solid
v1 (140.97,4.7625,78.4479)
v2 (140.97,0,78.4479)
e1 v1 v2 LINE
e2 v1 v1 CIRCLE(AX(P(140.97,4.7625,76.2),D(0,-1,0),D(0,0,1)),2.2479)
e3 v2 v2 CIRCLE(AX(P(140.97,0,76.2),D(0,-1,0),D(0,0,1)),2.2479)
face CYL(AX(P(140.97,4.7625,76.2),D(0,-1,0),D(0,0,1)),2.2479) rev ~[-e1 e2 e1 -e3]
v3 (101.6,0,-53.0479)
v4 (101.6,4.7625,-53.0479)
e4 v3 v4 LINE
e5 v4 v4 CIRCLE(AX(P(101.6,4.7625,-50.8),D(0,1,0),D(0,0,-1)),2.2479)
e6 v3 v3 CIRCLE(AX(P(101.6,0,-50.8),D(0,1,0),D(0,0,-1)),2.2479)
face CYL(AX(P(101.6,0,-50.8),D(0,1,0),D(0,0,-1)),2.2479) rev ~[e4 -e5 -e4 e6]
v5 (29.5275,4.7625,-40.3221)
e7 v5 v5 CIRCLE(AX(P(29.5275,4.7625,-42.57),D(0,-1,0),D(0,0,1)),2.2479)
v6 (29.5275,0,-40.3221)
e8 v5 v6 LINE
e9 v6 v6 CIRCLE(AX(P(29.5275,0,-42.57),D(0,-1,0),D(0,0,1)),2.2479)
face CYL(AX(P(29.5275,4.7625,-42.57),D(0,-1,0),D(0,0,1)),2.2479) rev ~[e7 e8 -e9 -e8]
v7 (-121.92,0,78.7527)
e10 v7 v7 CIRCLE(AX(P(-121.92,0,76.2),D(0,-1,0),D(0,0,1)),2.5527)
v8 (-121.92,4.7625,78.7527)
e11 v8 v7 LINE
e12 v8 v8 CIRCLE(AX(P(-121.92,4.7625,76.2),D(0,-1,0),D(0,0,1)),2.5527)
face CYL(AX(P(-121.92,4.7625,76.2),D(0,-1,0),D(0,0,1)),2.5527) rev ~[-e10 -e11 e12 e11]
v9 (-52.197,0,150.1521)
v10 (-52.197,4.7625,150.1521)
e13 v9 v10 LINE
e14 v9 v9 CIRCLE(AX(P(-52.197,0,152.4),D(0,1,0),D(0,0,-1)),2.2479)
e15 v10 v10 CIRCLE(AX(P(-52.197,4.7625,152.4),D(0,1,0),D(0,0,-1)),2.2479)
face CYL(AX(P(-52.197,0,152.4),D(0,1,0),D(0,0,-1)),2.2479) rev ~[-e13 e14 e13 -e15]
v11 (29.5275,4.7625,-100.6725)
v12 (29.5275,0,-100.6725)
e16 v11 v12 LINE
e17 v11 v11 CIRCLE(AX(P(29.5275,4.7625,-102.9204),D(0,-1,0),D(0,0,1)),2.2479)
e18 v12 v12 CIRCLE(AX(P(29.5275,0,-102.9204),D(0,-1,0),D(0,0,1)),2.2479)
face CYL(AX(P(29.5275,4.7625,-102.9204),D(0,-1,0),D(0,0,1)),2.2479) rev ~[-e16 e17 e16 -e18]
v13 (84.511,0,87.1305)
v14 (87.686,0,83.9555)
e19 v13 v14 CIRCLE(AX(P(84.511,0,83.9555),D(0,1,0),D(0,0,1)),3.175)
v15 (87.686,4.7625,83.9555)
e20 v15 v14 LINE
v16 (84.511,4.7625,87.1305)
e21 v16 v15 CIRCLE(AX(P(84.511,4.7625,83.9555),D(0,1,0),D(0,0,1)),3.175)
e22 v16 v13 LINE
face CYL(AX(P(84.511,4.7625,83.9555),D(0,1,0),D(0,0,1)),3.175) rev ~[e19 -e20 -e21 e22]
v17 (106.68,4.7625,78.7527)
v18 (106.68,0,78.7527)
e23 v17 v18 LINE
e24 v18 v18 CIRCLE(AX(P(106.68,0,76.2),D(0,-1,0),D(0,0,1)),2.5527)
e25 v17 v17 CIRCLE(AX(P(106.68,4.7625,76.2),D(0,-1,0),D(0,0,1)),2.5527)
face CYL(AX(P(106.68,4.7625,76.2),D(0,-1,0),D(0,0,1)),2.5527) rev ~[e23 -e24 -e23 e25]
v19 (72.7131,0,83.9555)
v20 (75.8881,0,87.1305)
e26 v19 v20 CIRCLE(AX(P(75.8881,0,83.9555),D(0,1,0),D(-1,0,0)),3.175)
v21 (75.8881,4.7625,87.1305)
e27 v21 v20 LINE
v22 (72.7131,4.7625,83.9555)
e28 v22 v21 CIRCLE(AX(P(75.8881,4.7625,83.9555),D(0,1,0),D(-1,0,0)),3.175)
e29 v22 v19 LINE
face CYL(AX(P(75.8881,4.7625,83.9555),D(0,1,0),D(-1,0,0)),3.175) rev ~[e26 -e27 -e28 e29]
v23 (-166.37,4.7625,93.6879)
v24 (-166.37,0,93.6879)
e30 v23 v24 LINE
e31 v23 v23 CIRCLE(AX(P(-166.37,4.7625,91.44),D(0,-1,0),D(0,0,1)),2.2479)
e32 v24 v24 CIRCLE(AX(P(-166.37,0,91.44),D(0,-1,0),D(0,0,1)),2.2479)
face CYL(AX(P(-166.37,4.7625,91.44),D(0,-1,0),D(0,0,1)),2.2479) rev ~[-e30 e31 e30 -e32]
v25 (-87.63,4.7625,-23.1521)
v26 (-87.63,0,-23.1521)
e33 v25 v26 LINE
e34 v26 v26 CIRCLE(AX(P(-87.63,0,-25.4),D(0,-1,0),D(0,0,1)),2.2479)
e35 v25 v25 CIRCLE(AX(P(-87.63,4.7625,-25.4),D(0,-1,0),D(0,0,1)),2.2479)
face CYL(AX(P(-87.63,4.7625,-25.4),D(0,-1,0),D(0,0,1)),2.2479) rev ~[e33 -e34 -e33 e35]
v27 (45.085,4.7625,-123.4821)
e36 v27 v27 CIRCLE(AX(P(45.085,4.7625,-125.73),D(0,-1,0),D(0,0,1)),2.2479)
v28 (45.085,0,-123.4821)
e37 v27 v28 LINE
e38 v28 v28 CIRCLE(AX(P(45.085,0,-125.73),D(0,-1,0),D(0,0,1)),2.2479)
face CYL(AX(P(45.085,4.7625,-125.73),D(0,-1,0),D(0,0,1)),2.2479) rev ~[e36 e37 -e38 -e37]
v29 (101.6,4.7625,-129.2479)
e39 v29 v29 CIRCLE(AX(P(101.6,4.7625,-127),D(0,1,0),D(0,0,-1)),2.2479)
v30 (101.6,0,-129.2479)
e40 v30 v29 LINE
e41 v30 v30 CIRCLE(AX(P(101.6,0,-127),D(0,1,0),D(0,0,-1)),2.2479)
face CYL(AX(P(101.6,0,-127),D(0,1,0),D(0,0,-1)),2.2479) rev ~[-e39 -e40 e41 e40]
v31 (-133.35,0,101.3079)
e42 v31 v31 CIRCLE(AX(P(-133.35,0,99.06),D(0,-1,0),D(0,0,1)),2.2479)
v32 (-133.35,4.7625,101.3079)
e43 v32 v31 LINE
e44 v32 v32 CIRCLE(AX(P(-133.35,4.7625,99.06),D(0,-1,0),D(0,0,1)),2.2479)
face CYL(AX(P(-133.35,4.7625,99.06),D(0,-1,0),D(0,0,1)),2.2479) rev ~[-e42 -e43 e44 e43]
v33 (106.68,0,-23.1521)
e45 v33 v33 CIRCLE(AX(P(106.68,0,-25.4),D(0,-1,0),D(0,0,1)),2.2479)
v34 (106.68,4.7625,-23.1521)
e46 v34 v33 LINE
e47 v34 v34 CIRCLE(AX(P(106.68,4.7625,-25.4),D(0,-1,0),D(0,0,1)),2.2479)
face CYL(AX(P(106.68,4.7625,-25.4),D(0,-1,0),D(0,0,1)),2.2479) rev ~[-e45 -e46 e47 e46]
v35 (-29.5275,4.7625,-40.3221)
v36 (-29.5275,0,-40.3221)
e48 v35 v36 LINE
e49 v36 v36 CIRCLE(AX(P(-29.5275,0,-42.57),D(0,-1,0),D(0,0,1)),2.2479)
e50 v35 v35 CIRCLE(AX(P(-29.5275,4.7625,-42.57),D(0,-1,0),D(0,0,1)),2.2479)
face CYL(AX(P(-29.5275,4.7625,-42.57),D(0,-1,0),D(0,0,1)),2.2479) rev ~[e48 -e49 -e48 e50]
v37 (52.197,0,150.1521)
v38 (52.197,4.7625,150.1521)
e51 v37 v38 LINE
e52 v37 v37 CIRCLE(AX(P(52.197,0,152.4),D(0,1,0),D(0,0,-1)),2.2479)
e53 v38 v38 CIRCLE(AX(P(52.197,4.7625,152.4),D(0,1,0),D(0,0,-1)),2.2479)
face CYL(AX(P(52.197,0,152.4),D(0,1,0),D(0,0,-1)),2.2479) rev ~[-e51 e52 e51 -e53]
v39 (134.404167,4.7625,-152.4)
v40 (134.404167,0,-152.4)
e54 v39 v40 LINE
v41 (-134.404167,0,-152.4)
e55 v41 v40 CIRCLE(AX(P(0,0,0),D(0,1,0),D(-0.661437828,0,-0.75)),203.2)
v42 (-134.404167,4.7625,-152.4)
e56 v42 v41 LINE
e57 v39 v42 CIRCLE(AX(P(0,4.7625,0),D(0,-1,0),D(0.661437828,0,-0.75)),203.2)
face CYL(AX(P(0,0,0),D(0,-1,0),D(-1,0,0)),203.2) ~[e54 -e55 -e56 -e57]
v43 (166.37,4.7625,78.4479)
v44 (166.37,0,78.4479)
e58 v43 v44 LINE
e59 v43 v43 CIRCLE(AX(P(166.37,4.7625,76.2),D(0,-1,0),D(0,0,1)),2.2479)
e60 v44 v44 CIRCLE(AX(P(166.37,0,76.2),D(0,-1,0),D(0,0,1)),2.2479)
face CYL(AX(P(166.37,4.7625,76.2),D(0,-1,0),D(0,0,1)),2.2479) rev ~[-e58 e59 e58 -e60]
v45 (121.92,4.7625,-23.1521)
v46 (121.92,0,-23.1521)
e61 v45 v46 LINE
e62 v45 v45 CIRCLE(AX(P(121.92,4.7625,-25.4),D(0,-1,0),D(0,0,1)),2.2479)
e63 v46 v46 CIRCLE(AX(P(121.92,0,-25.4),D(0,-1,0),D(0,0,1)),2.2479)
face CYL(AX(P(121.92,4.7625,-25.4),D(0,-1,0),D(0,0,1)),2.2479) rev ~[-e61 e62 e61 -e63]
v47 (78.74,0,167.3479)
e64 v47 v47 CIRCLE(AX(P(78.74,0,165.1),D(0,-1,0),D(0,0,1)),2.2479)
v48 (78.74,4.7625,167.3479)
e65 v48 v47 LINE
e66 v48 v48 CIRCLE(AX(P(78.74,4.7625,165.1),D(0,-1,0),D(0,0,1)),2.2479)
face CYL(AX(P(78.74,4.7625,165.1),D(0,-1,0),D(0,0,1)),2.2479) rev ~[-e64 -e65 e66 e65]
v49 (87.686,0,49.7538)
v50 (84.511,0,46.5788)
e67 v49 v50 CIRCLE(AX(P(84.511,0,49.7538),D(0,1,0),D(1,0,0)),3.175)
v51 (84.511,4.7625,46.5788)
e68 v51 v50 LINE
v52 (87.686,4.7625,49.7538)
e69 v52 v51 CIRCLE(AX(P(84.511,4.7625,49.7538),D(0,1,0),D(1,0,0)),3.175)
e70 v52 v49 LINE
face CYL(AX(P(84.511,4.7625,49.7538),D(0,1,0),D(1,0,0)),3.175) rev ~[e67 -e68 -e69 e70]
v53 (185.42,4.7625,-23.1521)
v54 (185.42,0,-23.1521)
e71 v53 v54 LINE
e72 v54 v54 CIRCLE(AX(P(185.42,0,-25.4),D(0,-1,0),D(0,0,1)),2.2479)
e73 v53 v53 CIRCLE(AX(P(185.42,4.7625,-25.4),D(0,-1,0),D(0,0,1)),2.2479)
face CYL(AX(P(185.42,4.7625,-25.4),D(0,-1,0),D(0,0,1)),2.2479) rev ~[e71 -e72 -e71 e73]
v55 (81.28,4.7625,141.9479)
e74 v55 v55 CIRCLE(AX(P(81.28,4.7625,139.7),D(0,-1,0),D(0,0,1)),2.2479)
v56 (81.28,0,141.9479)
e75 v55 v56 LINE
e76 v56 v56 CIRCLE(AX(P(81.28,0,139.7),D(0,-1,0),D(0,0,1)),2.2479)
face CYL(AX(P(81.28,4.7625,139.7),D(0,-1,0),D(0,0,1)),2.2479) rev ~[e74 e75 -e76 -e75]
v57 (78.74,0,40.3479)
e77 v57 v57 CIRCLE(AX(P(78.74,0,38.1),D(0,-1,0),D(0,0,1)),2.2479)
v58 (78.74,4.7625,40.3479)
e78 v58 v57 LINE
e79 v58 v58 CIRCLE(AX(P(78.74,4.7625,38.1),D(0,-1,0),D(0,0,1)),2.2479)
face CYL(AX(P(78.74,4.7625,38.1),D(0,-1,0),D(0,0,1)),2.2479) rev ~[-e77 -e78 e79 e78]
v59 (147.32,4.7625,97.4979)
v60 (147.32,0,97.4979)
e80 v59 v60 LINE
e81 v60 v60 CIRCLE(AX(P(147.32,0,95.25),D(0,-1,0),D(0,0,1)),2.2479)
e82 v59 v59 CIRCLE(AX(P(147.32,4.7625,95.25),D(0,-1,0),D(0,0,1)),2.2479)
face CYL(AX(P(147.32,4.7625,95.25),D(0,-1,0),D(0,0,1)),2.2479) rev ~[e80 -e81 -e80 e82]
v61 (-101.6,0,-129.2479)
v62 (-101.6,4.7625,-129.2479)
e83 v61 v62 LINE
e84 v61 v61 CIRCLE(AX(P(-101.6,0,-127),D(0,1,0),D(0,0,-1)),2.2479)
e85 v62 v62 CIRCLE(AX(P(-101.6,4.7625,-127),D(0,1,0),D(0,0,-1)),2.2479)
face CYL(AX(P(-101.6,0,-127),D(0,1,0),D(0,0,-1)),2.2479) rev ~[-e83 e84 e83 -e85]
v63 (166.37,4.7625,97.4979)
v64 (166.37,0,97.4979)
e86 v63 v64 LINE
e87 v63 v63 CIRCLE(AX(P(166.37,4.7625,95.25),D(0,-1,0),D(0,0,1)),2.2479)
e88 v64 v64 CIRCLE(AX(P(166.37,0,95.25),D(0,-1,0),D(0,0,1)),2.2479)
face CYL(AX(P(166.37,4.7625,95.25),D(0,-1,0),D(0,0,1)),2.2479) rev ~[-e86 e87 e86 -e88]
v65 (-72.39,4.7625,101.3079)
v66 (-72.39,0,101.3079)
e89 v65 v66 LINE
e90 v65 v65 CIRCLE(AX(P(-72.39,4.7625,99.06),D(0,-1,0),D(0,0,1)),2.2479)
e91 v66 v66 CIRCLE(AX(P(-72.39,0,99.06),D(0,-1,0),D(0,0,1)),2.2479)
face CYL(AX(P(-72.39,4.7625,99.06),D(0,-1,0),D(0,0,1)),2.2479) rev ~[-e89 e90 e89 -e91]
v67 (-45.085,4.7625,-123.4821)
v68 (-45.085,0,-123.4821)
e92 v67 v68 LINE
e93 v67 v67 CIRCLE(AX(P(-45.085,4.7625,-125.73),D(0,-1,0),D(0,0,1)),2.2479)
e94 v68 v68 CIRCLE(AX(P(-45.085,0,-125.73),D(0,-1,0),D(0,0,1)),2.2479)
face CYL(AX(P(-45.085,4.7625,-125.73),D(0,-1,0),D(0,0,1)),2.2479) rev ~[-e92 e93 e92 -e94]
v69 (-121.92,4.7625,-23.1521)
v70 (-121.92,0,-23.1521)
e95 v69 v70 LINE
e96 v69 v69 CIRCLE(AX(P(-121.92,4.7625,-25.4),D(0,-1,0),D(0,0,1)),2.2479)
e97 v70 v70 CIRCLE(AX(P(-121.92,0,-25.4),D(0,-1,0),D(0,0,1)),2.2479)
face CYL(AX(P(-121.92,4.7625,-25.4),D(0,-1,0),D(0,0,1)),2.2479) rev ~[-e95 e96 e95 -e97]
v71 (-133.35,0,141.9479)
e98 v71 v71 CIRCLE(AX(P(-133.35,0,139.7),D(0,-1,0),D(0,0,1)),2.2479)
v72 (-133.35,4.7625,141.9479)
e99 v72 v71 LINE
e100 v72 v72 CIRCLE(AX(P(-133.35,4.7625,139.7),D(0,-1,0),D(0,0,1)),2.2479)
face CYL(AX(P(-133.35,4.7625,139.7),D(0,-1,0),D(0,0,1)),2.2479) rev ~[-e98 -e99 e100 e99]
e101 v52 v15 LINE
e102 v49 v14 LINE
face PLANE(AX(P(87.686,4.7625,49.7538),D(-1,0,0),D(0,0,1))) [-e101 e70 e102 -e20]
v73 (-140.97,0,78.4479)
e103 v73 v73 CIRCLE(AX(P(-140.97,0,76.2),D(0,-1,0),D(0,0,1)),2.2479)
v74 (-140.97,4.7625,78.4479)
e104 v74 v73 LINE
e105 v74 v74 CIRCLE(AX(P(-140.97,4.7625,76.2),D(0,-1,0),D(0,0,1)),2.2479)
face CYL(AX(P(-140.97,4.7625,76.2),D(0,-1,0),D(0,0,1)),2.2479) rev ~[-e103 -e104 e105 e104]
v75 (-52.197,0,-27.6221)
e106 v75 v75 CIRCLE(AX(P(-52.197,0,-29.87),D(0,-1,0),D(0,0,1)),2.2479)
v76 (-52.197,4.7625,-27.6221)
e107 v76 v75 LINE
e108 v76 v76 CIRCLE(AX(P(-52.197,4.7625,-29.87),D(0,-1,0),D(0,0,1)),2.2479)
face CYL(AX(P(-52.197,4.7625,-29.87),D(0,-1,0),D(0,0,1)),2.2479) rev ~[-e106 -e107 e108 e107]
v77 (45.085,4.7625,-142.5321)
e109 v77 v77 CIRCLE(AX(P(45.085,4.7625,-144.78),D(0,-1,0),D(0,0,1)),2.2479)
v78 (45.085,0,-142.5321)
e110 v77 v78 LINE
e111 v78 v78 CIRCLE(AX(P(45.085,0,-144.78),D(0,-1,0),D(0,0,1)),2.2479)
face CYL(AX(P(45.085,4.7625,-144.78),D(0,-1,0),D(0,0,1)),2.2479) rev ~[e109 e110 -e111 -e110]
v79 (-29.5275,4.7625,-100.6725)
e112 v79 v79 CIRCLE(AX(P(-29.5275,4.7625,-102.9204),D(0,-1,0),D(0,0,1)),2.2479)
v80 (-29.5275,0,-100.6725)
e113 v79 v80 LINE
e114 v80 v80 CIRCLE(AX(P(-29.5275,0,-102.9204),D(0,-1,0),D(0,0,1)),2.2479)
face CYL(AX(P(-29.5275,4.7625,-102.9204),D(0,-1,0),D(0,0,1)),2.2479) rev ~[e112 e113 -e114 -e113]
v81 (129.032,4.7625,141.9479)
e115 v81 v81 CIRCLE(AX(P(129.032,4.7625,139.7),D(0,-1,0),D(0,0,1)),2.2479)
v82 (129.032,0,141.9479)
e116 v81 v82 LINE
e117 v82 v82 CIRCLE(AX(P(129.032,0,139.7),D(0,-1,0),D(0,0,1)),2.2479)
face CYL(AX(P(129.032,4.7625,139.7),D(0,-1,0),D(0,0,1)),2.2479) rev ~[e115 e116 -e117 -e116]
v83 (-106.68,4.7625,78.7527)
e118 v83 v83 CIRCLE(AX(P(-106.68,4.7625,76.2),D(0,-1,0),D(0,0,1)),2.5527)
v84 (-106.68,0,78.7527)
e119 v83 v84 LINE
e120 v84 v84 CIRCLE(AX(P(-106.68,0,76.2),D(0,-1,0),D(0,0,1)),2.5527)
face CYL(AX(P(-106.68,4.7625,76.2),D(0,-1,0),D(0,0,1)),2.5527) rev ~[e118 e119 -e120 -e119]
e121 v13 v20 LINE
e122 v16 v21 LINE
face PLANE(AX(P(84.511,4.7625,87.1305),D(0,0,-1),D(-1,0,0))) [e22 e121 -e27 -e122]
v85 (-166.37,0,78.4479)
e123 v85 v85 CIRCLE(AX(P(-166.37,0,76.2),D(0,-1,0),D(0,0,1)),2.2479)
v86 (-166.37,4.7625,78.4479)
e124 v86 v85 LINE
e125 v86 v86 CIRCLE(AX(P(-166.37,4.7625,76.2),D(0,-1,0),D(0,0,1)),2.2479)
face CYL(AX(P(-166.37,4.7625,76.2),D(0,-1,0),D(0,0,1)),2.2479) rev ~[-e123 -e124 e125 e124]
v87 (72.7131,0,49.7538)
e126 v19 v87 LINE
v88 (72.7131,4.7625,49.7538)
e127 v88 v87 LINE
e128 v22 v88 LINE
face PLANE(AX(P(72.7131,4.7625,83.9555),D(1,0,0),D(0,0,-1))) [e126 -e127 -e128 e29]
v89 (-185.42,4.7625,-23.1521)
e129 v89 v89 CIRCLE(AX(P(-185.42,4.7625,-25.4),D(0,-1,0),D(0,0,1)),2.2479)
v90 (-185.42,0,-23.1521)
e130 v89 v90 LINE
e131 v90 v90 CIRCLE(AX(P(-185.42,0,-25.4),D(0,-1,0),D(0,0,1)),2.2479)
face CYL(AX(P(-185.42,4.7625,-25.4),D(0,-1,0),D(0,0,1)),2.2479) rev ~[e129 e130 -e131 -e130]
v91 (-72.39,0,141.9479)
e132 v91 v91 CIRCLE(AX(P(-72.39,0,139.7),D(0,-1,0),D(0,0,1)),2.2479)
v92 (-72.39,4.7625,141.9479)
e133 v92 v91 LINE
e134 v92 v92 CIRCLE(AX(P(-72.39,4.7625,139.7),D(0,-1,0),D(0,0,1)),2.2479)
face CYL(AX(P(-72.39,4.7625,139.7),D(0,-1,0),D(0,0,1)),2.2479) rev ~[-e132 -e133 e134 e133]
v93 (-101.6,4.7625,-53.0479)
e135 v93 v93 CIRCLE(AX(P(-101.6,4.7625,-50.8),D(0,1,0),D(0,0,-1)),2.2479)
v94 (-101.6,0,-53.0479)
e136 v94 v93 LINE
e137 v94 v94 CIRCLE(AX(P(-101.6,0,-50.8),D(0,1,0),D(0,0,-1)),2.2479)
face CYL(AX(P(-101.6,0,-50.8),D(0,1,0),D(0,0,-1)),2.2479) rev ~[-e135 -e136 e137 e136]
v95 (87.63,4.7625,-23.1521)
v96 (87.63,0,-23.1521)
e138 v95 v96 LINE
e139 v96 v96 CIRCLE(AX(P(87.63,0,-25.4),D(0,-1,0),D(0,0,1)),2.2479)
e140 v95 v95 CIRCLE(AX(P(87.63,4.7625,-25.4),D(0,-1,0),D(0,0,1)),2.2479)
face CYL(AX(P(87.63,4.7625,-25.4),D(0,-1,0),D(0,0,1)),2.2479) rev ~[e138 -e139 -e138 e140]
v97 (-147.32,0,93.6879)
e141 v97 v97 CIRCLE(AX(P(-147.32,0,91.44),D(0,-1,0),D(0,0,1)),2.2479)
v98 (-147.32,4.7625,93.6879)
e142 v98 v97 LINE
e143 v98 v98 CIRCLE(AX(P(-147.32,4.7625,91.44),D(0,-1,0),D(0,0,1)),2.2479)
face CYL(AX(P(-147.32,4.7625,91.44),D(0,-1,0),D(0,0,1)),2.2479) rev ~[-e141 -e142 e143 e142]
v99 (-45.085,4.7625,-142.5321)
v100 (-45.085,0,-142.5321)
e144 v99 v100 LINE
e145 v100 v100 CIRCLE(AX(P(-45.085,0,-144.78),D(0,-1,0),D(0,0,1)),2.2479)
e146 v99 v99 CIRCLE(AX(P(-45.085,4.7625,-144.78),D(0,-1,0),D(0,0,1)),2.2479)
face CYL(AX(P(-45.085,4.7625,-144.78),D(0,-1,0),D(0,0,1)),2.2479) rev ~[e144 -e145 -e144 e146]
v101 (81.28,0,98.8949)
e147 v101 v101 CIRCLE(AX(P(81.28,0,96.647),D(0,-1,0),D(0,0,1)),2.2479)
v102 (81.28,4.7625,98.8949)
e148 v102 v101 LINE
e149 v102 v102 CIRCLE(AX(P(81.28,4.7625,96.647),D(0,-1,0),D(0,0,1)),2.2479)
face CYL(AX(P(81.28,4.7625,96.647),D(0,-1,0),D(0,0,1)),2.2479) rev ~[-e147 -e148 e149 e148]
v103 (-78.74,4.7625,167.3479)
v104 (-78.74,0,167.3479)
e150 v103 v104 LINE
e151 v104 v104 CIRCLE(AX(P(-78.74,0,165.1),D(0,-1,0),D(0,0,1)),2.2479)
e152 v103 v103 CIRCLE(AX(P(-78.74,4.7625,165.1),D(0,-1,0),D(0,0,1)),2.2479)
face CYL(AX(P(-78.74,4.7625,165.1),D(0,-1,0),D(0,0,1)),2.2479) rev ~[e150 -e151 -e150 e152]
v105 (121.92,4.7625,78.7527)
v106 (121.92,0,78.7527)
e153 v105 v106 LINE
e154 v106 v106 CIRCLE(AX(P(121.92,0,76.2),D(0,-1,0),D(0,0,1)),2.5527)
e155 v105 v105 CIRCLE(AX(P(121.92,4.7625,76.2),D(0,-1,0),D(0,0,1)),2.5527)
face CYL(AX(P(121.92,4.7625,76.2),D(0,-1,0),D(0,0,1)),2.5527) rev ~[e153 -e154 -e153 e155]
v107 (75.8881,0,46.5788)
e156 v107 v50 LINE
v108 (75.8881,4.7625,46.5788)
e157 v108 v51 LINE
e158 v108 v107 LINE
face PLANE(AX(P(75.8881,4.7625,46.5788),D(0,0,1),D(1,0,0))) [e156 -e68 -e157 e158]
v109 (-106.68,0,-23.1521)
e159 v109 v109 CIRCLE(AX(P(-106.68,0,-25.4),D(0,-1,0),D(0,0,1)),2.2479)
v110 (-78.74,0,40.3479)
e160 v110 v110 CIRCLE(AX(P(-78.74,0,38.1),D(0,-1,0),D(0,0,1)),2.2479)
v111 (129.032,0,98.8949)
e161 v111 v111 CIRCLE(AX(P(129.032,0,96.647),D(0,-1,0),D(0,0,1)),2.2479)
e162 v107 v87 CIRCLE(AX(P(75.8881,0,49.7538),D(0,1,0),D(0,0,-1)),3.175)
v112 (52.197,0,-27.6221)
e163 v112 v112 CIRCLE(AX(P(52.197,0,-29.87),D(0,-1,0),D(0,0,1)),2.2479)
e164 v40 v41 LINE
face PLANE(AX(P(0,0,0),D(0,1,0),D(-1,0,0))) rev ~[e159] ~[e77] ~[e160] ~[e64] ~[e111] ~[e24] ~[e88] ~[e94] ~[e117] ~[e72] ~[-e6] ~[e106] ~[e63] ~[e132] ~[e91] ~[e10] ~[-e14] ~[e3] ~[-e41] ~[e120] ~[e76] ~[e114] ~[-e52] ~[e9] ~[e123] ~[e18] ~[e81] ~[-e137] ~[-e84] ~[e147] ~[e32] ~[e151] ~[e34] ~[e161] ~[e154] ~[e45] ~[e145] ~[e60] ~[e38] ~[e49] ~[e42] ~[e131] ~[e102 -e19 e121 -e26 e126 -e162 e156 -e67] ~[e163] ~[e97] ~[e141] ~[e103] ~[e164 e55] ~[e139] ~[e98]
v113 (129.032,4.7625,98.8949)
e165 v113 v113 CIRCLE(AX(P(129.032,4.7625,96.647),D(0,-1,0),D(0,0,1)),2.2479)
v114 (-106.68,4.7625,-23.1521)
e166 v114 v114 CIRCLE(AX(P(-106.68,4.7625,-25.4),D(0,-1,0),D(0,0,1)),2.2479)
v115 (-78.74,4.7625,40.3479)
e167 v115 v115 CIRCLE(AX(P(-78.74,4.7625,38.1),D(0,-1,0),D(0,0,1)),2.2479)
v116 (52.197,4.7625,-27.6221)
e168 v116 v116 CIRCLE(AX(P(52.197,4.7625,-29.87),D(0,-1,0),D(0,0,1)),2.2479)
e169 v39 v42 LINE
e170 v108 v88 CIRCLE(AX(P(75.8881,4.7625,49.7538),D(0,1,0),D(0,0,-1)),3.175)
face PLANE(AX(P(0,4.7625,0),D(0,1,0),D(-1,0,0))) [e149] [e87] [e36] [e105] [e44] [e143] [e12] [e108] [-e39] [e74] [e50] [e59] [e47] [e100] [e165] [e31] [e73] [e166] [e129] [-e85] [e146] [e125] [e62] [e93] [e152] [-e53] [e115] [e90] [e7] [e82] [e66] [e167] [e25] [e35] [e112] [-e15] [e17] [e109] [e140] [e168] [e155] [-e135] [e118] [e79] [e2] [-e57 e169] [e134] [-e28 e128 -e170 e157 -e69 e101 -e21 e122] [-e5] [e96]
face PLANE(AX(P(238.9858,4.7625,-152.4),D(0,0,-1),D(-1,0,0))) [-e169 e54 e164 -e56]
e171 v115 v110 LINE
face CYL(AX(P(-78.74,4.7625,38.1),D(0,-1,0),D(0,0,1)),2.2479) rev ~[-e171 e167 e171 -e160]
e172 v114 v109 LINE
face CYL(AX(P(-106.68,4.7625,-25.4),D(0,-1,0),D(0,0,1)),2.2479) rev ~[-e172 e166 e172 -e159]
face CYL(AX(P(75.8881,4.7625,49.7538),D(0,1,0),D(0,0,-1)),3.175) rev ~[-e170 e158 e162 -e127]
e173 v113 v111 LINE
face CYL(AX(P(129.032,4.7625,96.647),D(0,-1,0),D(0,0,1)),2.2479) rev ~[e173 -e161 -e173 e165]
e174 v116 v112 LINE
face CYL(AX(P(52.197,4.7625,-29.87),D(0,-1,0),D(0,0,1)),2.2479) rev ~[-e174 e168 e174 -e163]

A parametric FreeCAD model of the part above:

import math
import FreeCAD as App
import Part
import Sketcher
from FreeCAD import Vector
Q = App.Units.Quantity

doc = App.newDocument("Part")
body = doc.addObject("PartDesign::Body", "Body")

# Sketch on XZ plane
sketch1 = body.newObject("Sketcher::SketchObject", "Sketch")
sketch1.AttachmentSupport = (doc.getObject("XZ_Plane"), [""])
sketch1.MapMode = "FlatFace"
sketch1.addGeometry(Part.Circle(Vector(0, 0, 0), Vector(0, 0, 1), 203), False)
sketch1.addConstraint(Sketcher.Constraint("Coincident", 0, 3, -1, 1))
sketch1.addConstraint(Sketcher.Constraint("Diameter", 0, Q("16 in")))
pad1 = body.newObject("PartDesign::Pad", "Pad")
pad1.Profile = sketch1
pad1.Length = Q("0.1875 in")
pad1.Reversed = True

# Sketch on XZ plane
sketch2 = body.newObject("Sketcher::SketchObject", "Sketch001")
sketch2.AttachmentSupport = (doc.getObject("XZ_Plane"), [""])
sketch2.MapMode = "FlatFace"
sketch2.addGeometry(Part.Circle(Vector(52.2, 152.4, 0), Vector(0, 0, 1), 2.2), False)
sketch2.addGeometry(Part.Circle(Vector(-52.2, 152.4, 0), Vector(0, 0, 1), 2.2), False)
sketch2.addConstraint(Sketcher.Constraint("Equal", 0, 1))
sketch2.addConstraint(Sketcher.Constraint("Symmetric", 0, 3, 1, 3, -2))
sketch2.addConstraint(Sketcher.Constraint("Diameter", 0, Q("0.177 in")))
sketch2.addConstraint(Sketcher.Constraint("DistanceY", -1, 1, 0, 3, Q("6 in")))
sketch2.addConstraint(Sketcher.Constraint("DistanceX", 1, 3, 0, 3, Q("4.11 in")))
doc.recompute()
hole = body.newObject("PartDesign::Hole", "Hole")
hole.Profile = sketch2
hole.ThreadType = "None"
hole.Diameter = Q("0.177 in")
hole.DepthType = "ThroughAll"

# Sketch on XZ plane
sketch3 = body.newObject("Sketcher::SketchObject", "Sketch002")
sketch3.AttachmentSupport = (doc.getObject("XZ_Plane"), [""])
sketch3.MapMode = "FlatFace"
sketch3.AttachmentOffset = App.Placement(Vector(0, 0, -0.1875 * 25.4), App.Rotation())
sketch3.addGeometry(Part.LineSegment(Vector(239, -258, 0), Vector(-250, -258, 0)), False)
sketch3.addGeometry(Part.LineSegment(Vector(-250, -258, 0), Vector(-250, -152, 0)), False)
sketch3.addGeometry(Part.LineSegment(Vector(-250, -152, 0), Vector(239, -152, 0)), False)
sketch3.addGeometry(Part.LineSegment(Vector(239, -152, 0), Vector(239, -258, 0)), False)
sketch3.addConstraint(Sketcher.Constraint("Coincident", 0, 2, 1, 1))
sketch3.addConstraint(Sketcher.Constraint("Coincident", 1, 2, 2, 1))
sketch3.addConstraint(Sketcher.Constraint("Coincident", 2, 2, 3, 1))
sketch3.addConstraint(Sketcher.Constraint("Coincident", 3, 2, 0, 1))
sketch3.addConstraint(Sketcher.Constraint("Horizontal", 0))
sketch3.addConstraint(Sketcher.Constraint("Vertical", 1))
sketch3.addConstraint(Sketcher.Constraint("Horizontal", 2))
sketch3.addConstraint(Sketcher.Constraint("Vertical", 3))
sketch3.addConstraint(Sketcher.Constraint("DistanceY", 1, 2, -1, 1, Q("6 in")))
sketch3.addConstraint(Sketcher.Constraint("DistanceX", 0, 2, 0, 1, Q("488.9594 mm")))
sketch3.addConstraint(Sketcher.Constraint("DistanceY", 1, 1, 1, 2, Q("105.883 mm")))
sketch3.addConstraint(Sketcher.Constraint("DistanceX", -1, 1, 2, 2, Q("9.4089 in")))
pocket1 = body.newObject("PartDesign::Pocket", "Pocket")
pocket1.Profile = sketch3
pocket1.Length = Q("3.9375 in")
pocket1.Reversed = True

# Sketch on XZ plane
sketch4 = body.newObject("Sketcher::SketchObject", "Sketch003")
sketch4.AttachmentSupport = (doc.getObject("XZ_Plane"), [""])
sketch4.MapMode = "FlatFace"
sketch4.AttachmentOffset = App.Placement(Vector(0, 0, -0.1875 * 25.4), App.Rotation())
sketch4.addGeometry(Part.Circle(Vector(-52.2, -29.9, 0), Vector(0, 0, 1), 2.2), False)
sketch4.addGeometry(Part.Circle(Vector(52.2, -29.9, 0), Vector(0, 0, 1), 2.2), False)
sketch4.addConstraint(Sketcher.Constraint("Equal", 0, 1))
sketch4.addConstraint(Sketcher.Constraint("Symmetric", 0, 3, 1, 3, -2))
sketch4.addConstraint(Sketcher.Constraint("Diameter", 0, Q("0.177 in")))
sketch4.addConstraint(Sketcher.Constraint("DistanceX", 0, 3, 1, 3, Q("4.11 in")))
sketch4.addConstraint(Sketcher.Constraint("DistanceY", 0, 3, -1, 1, Q("29.87 mm")))
doc.recompute()
hole2 = body.newObject("PartDesign::Hole", "Hole001")
hole2.Profile = sketch4
hole2.ThreadType = "None"
hole2.Diameter = Q("0.177 in")
hole2.DepthType = "Dimension"
hole2.Depth = Q("1 in")
hole2.DrillPoint = "Angled"
hole2.DrillPointAngle = 118
hole2.Reversed = True

# Sketch on XZ plane
sketch5 = body.newObject("Sketcher::SketchObject", "Sketch004")
sketch5.AttachmentSupport = (doc.getObject("XZ_Plane"), [""])
sketch5.MapMode = "FlatFace"
sketch5.AttachmentOffset = App.Placement(Vector(0, 0, -0.1875 * 25.4), App.Rotation())
sketch5.addGeometry(Part.Circle(Vector(-78.7, 165.1, 0), Vector(0, 0, 1), 2.2), False)
sketch5.addGeometry(Part.Circle(Vector(-78.7, 38.1, 0), Vector(0, 0, 1), 2.2), False)
sketch5.addGeometry(Part.Circle(Vector(78.7, 165.1, 0), Vector(0, 0, 1), 2.2), False)
sketch5.addGeometry(Part.Circle(Vector(78.7, 38.1, 0), Vector(0, 0, 1), 2.2), False)
sketch5.addConstraint(Sketcher.Constraint("Equal", 0, 1))
sketch5.addConstraint(Sketcher.Constraint("Equal", 1, 2))
sketch5.addConstraint(Sketcher.Constraint("Equal", 2, 3))
sketch5.addConstraint(Sketcher.Constraint("Symmetric", 0, 3, 2, 3, -2))
sketch5.addConstraint(Sketcher.Constraint("Symmetric", 1, 3, 3, 3, -2))
sketch5.addConstraint(Sketcher.Constraint("Vertical", 0, 3, 1, 3))
sketch5.addConstraint(Sketcher.Constraint("Diameter", 0, Q("0.177 in")))
sketch5.addConstraint(Sketcher.Constraint("DistanceY", 1, 3, 0, 3, Q("5 in")))
sketch5.addConstraint(Sketcher.Constraint("DistanceX", 0, 3, -1, 1, Q("3.1 in")))
sketch5.addConstraint(Sketcher.Constraint("DistanceY", -1, 1, 0, 3, Q("6.5 in")))
doc.recompute()
hole3 = body.newObject("PartDesign::Hole", "Hole002")
hole3.Profile = sketch5
hole3.ThreadType = "None"
hole3.Diameter = Q("0.177 in")
hole3.DepthType = "ThroughAll"
hole3.Reversed = True

# Sketch on XZ plane
sketch6 = body.newObject("Sketcher::SketchObject", "Sketch005")
sketch6.AttachmentSupport = (doc.getObject("XZ_Plane"), [""])
sketch6.MapMode = "FlatFace"
sketch6.AttachmentOffset = App.Placement(Vector(0, 0, -0.1875 * 25.4), App.Rotation())
sketch6.addGeometry(Part.Circle(Vector(81.3, 96.6, 0), Vector(0, 0, 1), 2.2), False)
sketch6.addGeometry(Part.Circle(Vector(129, 96.6, 0), Vector(0, 0, 1), 2.2), False)
sketch6.addGeometry(Part.Circle(Vector(81.3, 139.7, 0), Vector(0, 0, 1), 2.2), False)
sketch6.addGeometry(Part.Circle(Vector(129, 139.7, 0), Vector(0, 0, 1), 2.2), False)
sketch6.addConstraint(Sketcher.Constraint("Equal", 0, 1))
sketch6.addConstraint(Sketcher.Constraint("Equal", 1, 2))
sketch6.addConstraint(Sketcher.Constraint("Equal", 2, 3))
sketch6.addConstraint(Sketcher.Constraint("Horizontal", 0, 3, 1, 3))
sketch6.addConstraint(Sketcher.Constraint("Horizontal", 2, 3, 3, 3))
sketch6.addConstraint(Sketcher.Constraint("Vertical", 0, 3, 2, 3))
sketch6.addConstraint(Sketcher.Constraint("Vertical", 1, 3, 3, 3))
sketch6.addConstraint(Sketcher.Constraint("Diameter", 0, Q("0.177 in")))
sketch6.addConstraint(Sketcher.Constraint("DistanceX", -1, 1, 0, 3, Q("3.2 in")))
sketch6.addConstraint(Sketcher.Constraint("DistanceY", -1, 1, 2, 3, Q("5.5 in")))
sketch6.addConstraint(Sketcher.Constraint("DistanceX", -1, 1, 1, 3, Q("5.08 in")))
sketch6.addConstraint(Sketcher.Constraint("DistanceY", -1, 1, 0, 3, Q("3.805 in")))
doc.recompute()
hole4 = body.newObject("PartDesign::Hole", "Hole003")
hole4.Profile = sketch6
hole4.ThreadType = "None"
hole4.Diameter = Q("0.177 in")
hole4.DepthType = "ThroughAll"
hole4.Reversed = True

# Sketch on XZ plane
sketch7 = body.newObject("Sketcher::SketchObject", "Sketch006")
sketch7.AttachmentSupport = (doc.getObject("XZ_Plane"), [""])
sketch7.MapMode = "FlatFace"
sketch7.AttachmentOffset = App.Placement(Vector(0, 0, -0.1875 * 25.4), App.Rotation())
sketch7.addGeometry(Part.Circle(Vector(-29.5, -102.9, 0), Vector(0, 0, 1), 2.2), False)
sketch7.addGeometry(Part.Circle(Vector(-29.5, -42.6, 0), Vector(0, 0, 1), 2.2), False)
sketch7.addGeometry(Part.Circle(Vector(29.5, -42.6, 0), Vector(0, 0, 1), 2.2), False)
sketch7.addGeometry(Part.Circle(Vector(29.5, -102.9, 0), Vector(0, 0, 1), 2.2), False)
sketch7.addConstraint(Sketcher.Constraint("Equal", 0, 1))
sketch7.addConstraint(Sketcher.Constraint("Equal", 1, 2))
sketch7.addConstraint(Sketcher.Constraint("Equal", 2, 3))
sketch7.addConstraint(Sketcher.Constraint("Symmetric", 1, 3, 2, 3, -2))
sketch7.addConstraint(Sketcher.Constraint("Symmetric", 0, 3, 3, 3, -2))
sketch7.addConstraint(Sketcher.Constraint("Vertical", 0, 3, 1, 3))
sketch7.addConstraint(Sketcher.Constraint("Diameter", 0, Q("0.177 in")))
sketch7.addConstraint(Sketcher.Constraint("DistanceY", 0, 3, 1, 3, Q("2.376 in")))
sketch7.addConstraint(Sketcher.Constraint("DistanceX", 1, 3, 2, 3, Q("2.325 in")))
sketch7.addConstraint(Sketcher.Constraint("DistanceY", 0, 3, -1, 1, Q("102.9204 mm")))
doc.recompute()
hole5 = body.newObject("PartDesign::Hole", "Hole004")
hole5.Profile = sketch7
hole5.ThreadType = "None"
hole5.Diameter = Q("0.177 in")
hole5.DepthType = "ThroughAll"
hole5.Reversed = True

# Sketch on XZ plane
sketch8 = body.newObject("Sketcher::SketchObject", "Sketch007")
sketch8.AttachmentSupport = (doc.getObject("XZ_Plane"), [""])
sketch8.MapMode = "FlatFace"
sketch8.AttachmentOffset = App.Placement(Vector(0, 0, -0.1875 * 25.4), App.Rotation())
sketch8.addGeometry(Part.Circle(Vector(-45.1, -144.8, 0), Vector(0, 0, 1), 2.2), False)
sketch8.addGeometry(Part.Circle(Vector(45.1, -144.8, 0), Vector(0, 0, 1), 2.2), False)
sketch8.addGeometry(Part.Circle(Vector(45.1, -125.7, 0), Vector(0, 0, 1), 2.2), False)
sketch8.addGeometry(Part.Circle(Vector(-45.1, -125.7, 0), Vector(0, 0, 1), 2.2), False)
sketch8.addConstraint(Sketcher.Constraint("Equal", 0, 1))
sketch8.addConstraint(Sketcher.Constraint("Equal", 1, 2))
sketch8.addConstraint(Sketcher.Constraint("Equal", 2, 3))
sketch8.addConstraint(Sketcher.Constraint("Symmetric", 0, 3, 1, 3, -2))
sketch8.addConstraint(Sketcher.Constraint("Symmetric", 2, 3, 3, 3, -2))
sketch8.addConstraint(Sketcher.Constraint("Vertical", 1, 3, 2, 3))
sketch8.addConstraint(Sketcher.Constraint("Diameter", 0, Q("0.177 in")))
sketch8.addConstraint(Sketcher.Constraint("DistanceY", 0, 3, -1, 1, Q("5.7 in")))
sketch8.addConstraint(Sketcher.Constraint("DistanceY", 2, 3, -1, 1, Q("4.95 in")))
sketch8.addConstraint(Sketcher.Constraint("DistanceX", 0, 3, 1, 3, Q("3.55 in")))
doc.recompute()
hole6 = body.newObject("PartDesign::Hole", "Hole005")
hole6.Profile = sketch8
hole6.ThreadType = "None"
hole6.Diameter = Q("0.177 in")
hole6.DepthType = "ThroughAll"
hole6.Reversed = True

# Sketch on XZ plane
sketch9 = body.newObject("Sketcher::SketchObject", "Sketch008")
sketch9.AttachmentSupport = (doc.getObject("XZ_Plane"), [""])
sketch9.MapMode = "FlatFace"
sketch9.AttachmentOffset = App.Placement(Vector(0, 0, -0.1875 * 25.4), App.Rotation())
sketch9.addGeometry(Part.Circle(Vector(-106.7, 76.2, 0), Vector(0, 0, 1), 2.6), False)
sketch9.addGeometry(Part.Circle(Vector(-121.9, 76.2, 0), Vector(0, 0, 1), 2.6), False)
sketch9.addGeometry(Part.Circle(Vector(106.7, 76.2, 0), Vector(0, 0, 1), 2.6), False)
sketch9.addGeometry(Part.Circle(Vector(121.9, 76.2, 0), Vector(0, 0, 1), 2.6), False)
sketch9.addConstraint(Sketcher.Constraint("Equal", 0, 1))
sketch9.addConstraint(Sketcher.Constraint("Equal", 1, 2))
sketch9.addConstraint(Sketcher.Constraint("Equal", 2, 3))
sketch9.addConstraint(Sketcher.Constraint("Symmetric", 0, 3, 2, 3, -2))
sketch9.addConstraint(Sketcher.Constraint("Symmetric", 1, 3, 3, 3, -2))
sketch9.addConstraint(Sketcher.Constraint("Horizontal", 0, 3, 1, 3))
sketch9.addConstraint(Sketcher.Constraint("Diameter", 0, Q("0.201 in")))
sketch9.addConstraint(Sketcher.Constraint("DistanceY", -1, 1, 0, 3, Q("3 in")))
sketch9.addConstraint(Sketcher.Constraint("DistanceX", 1, 3, 2, 3, Q("9 in")))
sketch9.addConstraint(Sketcher.Constraint("DistanceX", 0, 3, -1, 1, Q("4.2 in")))
doc.recompute()
hole7 = body.newObject("PartDesign::Hole", "Hole006")
hole7.Profile = sketch9
hole7.ThreadType = "None"
hole7.Diameter = Q("0.201 in")
hole7.DepthType = "Dimension"
hole7.Depth = Q("1 in")
hole7.DrillPoint = "Angled"
hole7.DrillPointAngle = 118
hole7.Reversed = True

# Sketch on XZ plane
sketch10 = body.newObject("Sketcher::SketchObject", "Sketch009")
sketch10.AttachmentSupport = (doc.getObject("XZ_Plane"), [""])
sketch10.MapMode = "FlatFace"
sketch10.AttachmentOffset = App.Placement(Vector(0, 0, -0.1875 * 25.4), App.Rotation())
sketch10.addGeometry(Part.Circle(Vector(-121.9, -25.4, 0), Vector(0, 0, 1), 2.2), False)
sketch10.addGeometry(Part.Circle(Vector(-106.7, -25.4, 0), Vector(0, 0, 1), 2.2), False)
sketch10.addGeometry(Part.Circle(Vector(121.9, -25.4, 0), Vector(0, 0, 1), 2.2), False)
sketch10.addGeometry(Part.Circle(Vector(106.7, -25.4, 0), Vector(0, 0, 1), 2.2), False)
sketch10.addConstraint(Sketcher.Constraint("Equal", 0, 1))
sketch10.addConstraint(Sketcher.Constraint("Equal", 1, 2))
sketch10.addConstraint(Sketcher.Constraint("Equal", 2, 3))
sketch10.addConstraint(Sketcher.Constraint("Symmetric", 0, 3, 2, 3, -2))
sketch10.addConstraint(Sketcher.Constraint("Symmetric", 1, 3, 3, 3, -2))
sketch10.addConstraint(Sketcher.Constraint("Horizontal", 0, 3, 1, 3))
sketch10.addConstraint(Sketcher.Constraint("Diameter", 0, Q("0.177 in")))
sketch10.addConstraint(Sketcher.Constraint("DistanceY", 0, 3, -1, 1, Q("1 in")))
sketch10.addConstraint(Sketcher.Constraint("DistanceX", 1, 3, 2, 3, Q("9 in")))
sketch10.addConstraint(Sketcher.Constraint("DistanceX", 0, 3, -1, 1, Q("4.8 in")))
doc.recompute()
hole8 = body.newObject("PartDesign::Hole", "Hole007")
hole8.Profile = sketch10
hole8.ThreadType = "None"
hole8.Diameter = Q("0.177 in")
hole8.DepthType = "ThroughAll"
hole8.Reversed = True

# Sketch on XZ plane
sketch11 = body.newObject("Sketcher::SketchObject", "Sketch010")
sketch11.AttachmentSupport = (doc.getObject("XZ_Plane"), [""])
sketch11.MapMode = "FlatFace"
sketch11.AttachmentOffset = App.Placement(Vector(0, 0, -0.1875 * 25.4), App.Rotation())
sketch11.addGeometry(Part.Circle(Vector(-87.6, -25.4, 0), Vector(0, 0, 1), 2.2), False)
sketch11.addGeometry(Part.Circle(Vector(-185.4, -25.4, 0), Vector(0, 0, 1), 2.2), False)
sketch11.addGeometry(Part.Circle(Vector(87.6, -25.4, 0), Vector(0, 0, 1), 2.2), False)
sketch11.addGeometry(Part.Circle(Vector(185.4, -25.4, 0), Vector(0, 0, 1), 2.2), False)
sketch11.addConstraint(Sketcher.Constraint("Equal", 0, 1))
sketch11.addConstraint(Sketcher.Constraint("Equal", 1, 2))
sketch11.addConstraint(Sketcher.Constraint("Equal", 2, 3))
sketch11.addConstraint(Sketcher.Constraint("Symmetric", 0, 3, 2, 3, -2))
sketch11.addConstraint(Sketcher.Constraint("Symmetric", 1, 3, 3, 3, -2))
sketch11.addConstraint(Sketcher.Constraint("Horizontal", 0, 3, 1, 3))
sketch11.addConstraint(Sketcher.Constraint("Diameter", 0, Q("0.177 in")))
sketch11.addConstraint(Sketcher.Constraint("DistanceY", 0, 3, -1, 1, Q("1 in")))
sketch11.addConstraint(Sketcher.Constraint("DistanceX", 1, 3, -1, 1, Q("7.3 in")))
sketch11.addConstraint(Sketcher.Constraint("DistanceX", 0, 3, 2, 3, Q("6.9 in")))
doc.recompute()
hole9 = body.newObject("PartDesign::Hole", "Hole008")
hole9.Profile = sketch11
hole9.ThreadType = "None"
hole9.Diameter = Q("0.177 in")
hole9.DepthType = "ThroughAll"
hole9.Reversed = True

# Sketch on XZ plane
sketch12 = body.newObject("Sketcher::SketchObject", "Sketch011")
sketch12.AttachmentSupport = (doc.getObject("XZ_Plane"), [""])
sketch12.MapMode = "FlatFace"
sketch12.AttachmentOffset = App.Placement(Vector(0, 0, -0.1875 * 25.4), App.Rotation())
sketch12.addGeometry(Part.Circle(Vector(-141, 76.2, 0), Vector(0, 0, 1), 2.2), False)
sketch12.addGeometry(Part.Circle(Vector(-166.4, 76.2, 0), Vector(0, 0, 1), 2.2), False)
sketch12.addGeometry(Part.Circle(Vector(141, 76.2, 0), Vector(0, 0, 1), 2.2), False)
sketch12.addGeometry(Part.Circle(Vector(166.4, 76.2, 0), Vector(0, 0, 1), 2.2), False)
sketch12.addConstraint(Sketcher.Constraint("Equal", 0, 1))
sketch12.addConstraint(Sketcher.Constraint("Equal", 1, 2))
sketch12.addConstraint(Sketcher.Constraint("Equal", 2, 3))
sketch12.addConstraint(Sketcher.Constraint("Symmetric", 0, 3, 2, 3, -2))
sketch12.addConstraint(Sketcher.Constraint("Symmetric", 1, 3, 3, 3, -2))
sketch12.addConstraint(Sketcher.Constraint("Horizontal", 0, 3, 1, 3))
sketch12.addConstraint(Sketcher.Constraint("Diameter", 0, Q("0.177 in")))
sketch12.addConstraint(Sketcher.Constraint("DistanceY", -1, 1, 0, 3, Q("3 in")))
sketch12.addConstraint(Sketcher.Constraint("DistanceX", 1, 3, 0, 3, Q("1 in")))
sketch12.addConstraint(Sketcher.Constraint("DistanceX", 0, 3, 2, 3, Q("11.1 in")))
doc.recompute()
hole10 = body.newObject("PartDesign::Hole", "Hole009")
hole10.Profile = sketch12
hole10.ThreadType = "None"
hole10.Diameter = Q("0.177 in")
hole10.DepthType = "ThroughAll"
hole10.Reversed = True

# Sketch on XZ plane
sketch13 = body.newObject("Sketcher::SketchObject", "Sketch012")
sketch13.AttachmentSupport = (doc.getObject("XZ_Plane"), [""])
sketch13.MapMode = "FlatFace"
sketch13.AttachmentOffset = App.Placement(Vector(0, 0, -0.1875 * 25.4), App.Rotation())
sketch13.addGeometry(Part.LineSegment(Vector(84.5, 46.6, 0), Vector(75.9, 46.6, 0)), False)
sketch13.addGeometry(Part.ArcOfCircle(Part.Circle(Vector(75.9, 49.8, 0), Vector(0, 0, 1), 3.2), math.radians(180), math.radians(270)), False)
sketch13.addGeometry(Part.LineSegment(Vector(72.7, 49.8, 0), Vector(72.7, 84, 0)), False)
sketch13.addGeometry(Part.ArcOfCircle(Part.Circle(Vector(75.9, 84, 0), Vector(0, 0, 1), 3.2), math.radians(90), math.radians(180)), False)
sketch13.addGeometry(Part.LineSegment(Vector(75.9, 87.1, 0), Vector(84.5, 87.1, 0)), False)
sketch13.addGeometry(Part.ArcOfCircle(Part.Circle(Vector(84.5, 84, 0), Vector(0, 0, 1), 3.2), math.radians(0), math.radians(90)), False)
sketch13.addGeometry(Part.LineSegment(Vector(87.7, 84, 0), Vector(87.7, 49.8, 0)), False)
sketch13.addGeometry(Part.ArcOfCircle(Part.Circle(Vector(84.5, 49.8, 0), Vector(0, 0, 1), 3.2), math.radians(-90), math.radians(0)), False)
sketch13.addConstraint(Sketcher.Constraint("Tangent", 0, 2, 1, 2))
sketch13.addConstraint(Sketcher.Constraint("Tangent", 1, 1, 2, 1))
sketch13.addConstraint(Sketcher.Constraint("Tangent", 2, 2, 3, 2))
sketch13.addConstraint(Sketcher.Constraint("Tangent", 3, 1, 4, 1))
sketch13.addConstraint(Sketcher.Constraint("Tangent", 4, 2, 5, 2))
sketch13.addConstraint(Sketcher.Constraint("Tangent", 5, 1, 6, 1))
sketch13.addConstraint(Sketcher.Constraint("Tangent", 6, 2, 7, 2))
sketch13.addConstraint(Sketcher.Constraint("Tangent", 7, 1, 0, 1))
sketch13.addConstraint(Sketcher.Constraint("Horizontal", 0))
sketch13.addConstraint(Sketcher.Constraint("Vertical", 2))
sketch13.addConstraint(Sketcher.Constraint("Horizontal", 4))
sketch13.addConstraint(Sketcher.Constraint("Vertical", 6))
sketch13.addConstraint(Sketcher.Constraint("Equal", 1, 3))
sketch13.addConstraint(Sketcher.Constraint("Equal", 3, 5))
sketch13.addConstraint(Sketcher.Constraint("Equal", 5, 7))
sketch13.addConstraint(Sketcher.Constraint("Radius", 1, Q("0.125 in")))
sketch13.addConstraint(Sketcher.Constraint("DistanceX", 0, 2, 0, 1, Q("0.3394882 in")))
sketch13.addConstraint(Sketcher.Constraint("DistanceY", 2, 1, 2, 2, Q("34.2017 mm")))
sketch13.addConstraint(Sketcher.Constraint("DistanceY", -1, 1, 1, 3, Q("1.9588 in")))
sketch13.addConstraint(Sketcher.Constraint("DistanceX", -1, 1, 5, 3, Q("3.3272 in")))
pocket2 = body.newObject("PartDesign::Pocket", "Pocket001")
pocket2.Profile = sketch13
pocket2.Length = Q("1 in")
pocket2.Reversed = True

# Sketch on XZ plane
sketch14 = body.newObject("Sketcher::SketchObject", "Sketch013")
sketch14.AttachmentSupport = (doc.getObject("XZ_Plane"), [""])
sketch14.MapMode = "FlatFace"
sketch14.AttachmentOffset = App.Placement(Vector(0, 0, -0.1875 * 25.4), App.Rotation())
sketch14.addGeometry(Part.Circle(Vector(-133.3, 99.1, 0), Vector(0, 0, 1), 2.2), False)
sketch14.addGeometry(Part.Circle(Vector(-72.4, 99.1, 0), Vector(0, 0, 1), 2.2), False)
sketch14.addGeometry(Part.Circle(Vector(-72.4, 139.7, 0), Vector(0, 0, 1), 2.2), False)
sketch14.addGeometry(Part.Circle(Vector(-133.3, 139.7, 0), Vector(0, 0, 1), 2.2), False)
sketch14.addConstraint(Sketcher.Constraint("Equal", 0, 1))
sketch14.addConstraint(Sketcher.Constraint("Equal", 1, 2))
sketch14.addConstraint(Sketcher.Constraint("Equal", 2, 3))
sketch14.addConstraint(Sketcher.Constraint("Horizontal", 0, 3, 1, 3))
sketch14.addConstraint(Sketcher.Constraint("Horizontal", 2, 3, 3, 3))
sketch14.addConstraint(Sketcher.Constraint("Vertical", 1, 3, 2, 3))
sketch14.addConstraint(Sketcher.Constraint("Vertical", 0, 3, 3, 3))
sketch14.addConstraint(Sketcher.Constraint("Diameter", 0, Q("0.177 in")))
sketch14.addConstraint(Sketcher.Constraint("DistanceY", -1, 1, 0, 3, Q("3.9 in")))
sketch14.addConstraint(Sketcher.Constraint("DistanceY", -1, 1, 2, 3, Q("5.5 in")))
sketch14.addConstraint(Sketcher.Constraint("DistanceX", 0, 3, 1, 3, Q("2.4 in")))
sketch14.addConstraint(Sketcher.Constraint("DistanceX", 0, 3, -1, 1, Q("5.25 in")))
doc.recompute()
hole11 = body.newObject("PartDesign::Hole", "Hole010")
hole11.Profile = sketch14
hole11.ThreadType = "None"
hole11.Diameter = Q("0.177 in")
hole11.DepthType = "ThroughAll"
hole11.Reversed = True

# Sketch on XZ plane
sketch15 = body.newObject("Sketcher::SketchObject", "Sketch014")
sketch15.AttachmentSupport = (doc.getObject("XZ_Plane"), [""])
sketch15.MapMode = "FlatFace"
sketch15.addGeometry(Part.Circle(Vector(-101.6, -50.8, 0), Vector(0, 0, 1), 2.2), False)
sketch15.addGeometry(Part.Circle(Vector(-101.6, -127, 0), Vector(0, 0, 1), 2.2), False)
sketch15.addGeometry(Part.Circle(Vector(101.6, -127, 0), Vector(0, 0, 1), 2.2), False)
sketch15.addGeometry(Part.Circle(Vector(101.6, -50.8, 0), Vector(0, 0, 1), 2.2), False)
sketch15.addConstraint(Sketcher.Constraint("Equal", 0, 1))
sketch15.addConstraint(Sketcher.Constraint("Equal", 1, 2))
sketch15.addConstraint(Sketcher.Constraint("Equal", 2, 3))
sketch15.addConstraint(Sketcher.Constraint("Symmetric", 1, 3, 2, 3, -2))
sketch15.addConstraint(Sketcher.Constraint("Symmetric", 0, 3, 3, 3, -2))
sketch15.addConstraint(Sketcher.Constraint("Vertical", 0, 3, 1, 3))
sketch15.addConstraint(Sketcher.Constraint("Diameter", 0, Q("0.177 in")))
sketch15.addConstraint(Sketcher.Constraint("DistanceX", 0, 3, -1, 1, Q("4 in")))
sketch15.addConstraint(Sketcher.Constraint("DistanceY", 0, 3, -1, 1, Q("2 in")))
sketch15.addConstraint(Sketcher.Constraint("DistanceY", 1, 3, -1, 1, Q("5 in")))
doc.recompute()
hole12 = body.newObject("PartDesign::Hole", "Hole011")
hole12.Profile = sketch15
hole12.ThreadType = "None"
hole12.Diameter = Q("0.177 in")
hole12.DepthType = "ThroughAll"

# Sketch on XZ plane
sketch16 = body.newObject("Sketcher::SketchObject", "Sketch015")
sketch16.AttachmentSupport = (doc.getObject("XZ_Plane"), [""])
sketch16.MapMode = "FlatFace"
sketch16.AttachmentOffset = App.Placement(Vector(0, 0, -0.1875 * 25.4), App.Rotation())
sketch16.addGeometry(Part.Circle(Vector(-166.4, 91.4, 0), Vector(0, 0, 1), 2.2), False)
sketch16.addGeometry(Part.Circle(Vector(-147.3, 91.4, 0), Vector(0, 0, 1), 2.2), False)
sketch16.addGeometry(Part.Circle(Vector(147.3, 95.2, 0), Vector(0, 0, 1), 2.2), False)
sketch16.addGeometry(Part.Circle(Vector(166.4, 95.2, 0), Vector(0, 0, 1), 2.2), False)
sketch16.addConstraint(Sketcher.Constraint("Equal", 0, 1))
sketch16.addConstraint(Sketcher.Constraint("Equal", 1, 2))
sketch16.addConstraint(Sketcher.Constraint("Equal", 2, 3))
sketch16.addConstraint(Sketcher.Constraint("Horizontal", 0, 3, 1, 3))
sketch16.addConstraint(Sketcher.Constraint("Horizontal", 2, 3, 3, 3))
sketch16.addConstraint(Sketcher.Constraint("Diameter", 0, Q("0.177 in")))
sketch16.addConstraint(Sketcher.Constraint("DistanceY", -1, 1, 0, 3, Q("3.6 in")))
sketch16.addConstraint(Sketcher.Constraint("DistanceX", 1, 3, -1, 1, Q("5.8 in")))
sketch16.addConstraint(Sketcher.Constraint("DistanceX", -1, 1, 2, 3, Q("5.8 in")))
sketch16.addConstraint(Sketcher.Constraint("DistanceX", 0, 3, 3, 3, Q("13.1 in")))
sketch16.addConstraint(Sketcher.Constraint("DistanceX", 0, 3, -1, 1, Q("6.55 in")))
sketch16.addConstraint(Sketcher.Constraint("DistanceY", -1, 1, 2, 3, Q("3.75 in")))
doc.recompute()
hole13 = body.newObject("PartDesign::Hole", "Hole012")
hole13.Profile = sketch16
hole13.ThreadType = "None"
hole13.Diameter = Q("0.177 in")
hole13.DepthType = "ThroughAll"
hole13.Reversed = True

doc.recompute()
